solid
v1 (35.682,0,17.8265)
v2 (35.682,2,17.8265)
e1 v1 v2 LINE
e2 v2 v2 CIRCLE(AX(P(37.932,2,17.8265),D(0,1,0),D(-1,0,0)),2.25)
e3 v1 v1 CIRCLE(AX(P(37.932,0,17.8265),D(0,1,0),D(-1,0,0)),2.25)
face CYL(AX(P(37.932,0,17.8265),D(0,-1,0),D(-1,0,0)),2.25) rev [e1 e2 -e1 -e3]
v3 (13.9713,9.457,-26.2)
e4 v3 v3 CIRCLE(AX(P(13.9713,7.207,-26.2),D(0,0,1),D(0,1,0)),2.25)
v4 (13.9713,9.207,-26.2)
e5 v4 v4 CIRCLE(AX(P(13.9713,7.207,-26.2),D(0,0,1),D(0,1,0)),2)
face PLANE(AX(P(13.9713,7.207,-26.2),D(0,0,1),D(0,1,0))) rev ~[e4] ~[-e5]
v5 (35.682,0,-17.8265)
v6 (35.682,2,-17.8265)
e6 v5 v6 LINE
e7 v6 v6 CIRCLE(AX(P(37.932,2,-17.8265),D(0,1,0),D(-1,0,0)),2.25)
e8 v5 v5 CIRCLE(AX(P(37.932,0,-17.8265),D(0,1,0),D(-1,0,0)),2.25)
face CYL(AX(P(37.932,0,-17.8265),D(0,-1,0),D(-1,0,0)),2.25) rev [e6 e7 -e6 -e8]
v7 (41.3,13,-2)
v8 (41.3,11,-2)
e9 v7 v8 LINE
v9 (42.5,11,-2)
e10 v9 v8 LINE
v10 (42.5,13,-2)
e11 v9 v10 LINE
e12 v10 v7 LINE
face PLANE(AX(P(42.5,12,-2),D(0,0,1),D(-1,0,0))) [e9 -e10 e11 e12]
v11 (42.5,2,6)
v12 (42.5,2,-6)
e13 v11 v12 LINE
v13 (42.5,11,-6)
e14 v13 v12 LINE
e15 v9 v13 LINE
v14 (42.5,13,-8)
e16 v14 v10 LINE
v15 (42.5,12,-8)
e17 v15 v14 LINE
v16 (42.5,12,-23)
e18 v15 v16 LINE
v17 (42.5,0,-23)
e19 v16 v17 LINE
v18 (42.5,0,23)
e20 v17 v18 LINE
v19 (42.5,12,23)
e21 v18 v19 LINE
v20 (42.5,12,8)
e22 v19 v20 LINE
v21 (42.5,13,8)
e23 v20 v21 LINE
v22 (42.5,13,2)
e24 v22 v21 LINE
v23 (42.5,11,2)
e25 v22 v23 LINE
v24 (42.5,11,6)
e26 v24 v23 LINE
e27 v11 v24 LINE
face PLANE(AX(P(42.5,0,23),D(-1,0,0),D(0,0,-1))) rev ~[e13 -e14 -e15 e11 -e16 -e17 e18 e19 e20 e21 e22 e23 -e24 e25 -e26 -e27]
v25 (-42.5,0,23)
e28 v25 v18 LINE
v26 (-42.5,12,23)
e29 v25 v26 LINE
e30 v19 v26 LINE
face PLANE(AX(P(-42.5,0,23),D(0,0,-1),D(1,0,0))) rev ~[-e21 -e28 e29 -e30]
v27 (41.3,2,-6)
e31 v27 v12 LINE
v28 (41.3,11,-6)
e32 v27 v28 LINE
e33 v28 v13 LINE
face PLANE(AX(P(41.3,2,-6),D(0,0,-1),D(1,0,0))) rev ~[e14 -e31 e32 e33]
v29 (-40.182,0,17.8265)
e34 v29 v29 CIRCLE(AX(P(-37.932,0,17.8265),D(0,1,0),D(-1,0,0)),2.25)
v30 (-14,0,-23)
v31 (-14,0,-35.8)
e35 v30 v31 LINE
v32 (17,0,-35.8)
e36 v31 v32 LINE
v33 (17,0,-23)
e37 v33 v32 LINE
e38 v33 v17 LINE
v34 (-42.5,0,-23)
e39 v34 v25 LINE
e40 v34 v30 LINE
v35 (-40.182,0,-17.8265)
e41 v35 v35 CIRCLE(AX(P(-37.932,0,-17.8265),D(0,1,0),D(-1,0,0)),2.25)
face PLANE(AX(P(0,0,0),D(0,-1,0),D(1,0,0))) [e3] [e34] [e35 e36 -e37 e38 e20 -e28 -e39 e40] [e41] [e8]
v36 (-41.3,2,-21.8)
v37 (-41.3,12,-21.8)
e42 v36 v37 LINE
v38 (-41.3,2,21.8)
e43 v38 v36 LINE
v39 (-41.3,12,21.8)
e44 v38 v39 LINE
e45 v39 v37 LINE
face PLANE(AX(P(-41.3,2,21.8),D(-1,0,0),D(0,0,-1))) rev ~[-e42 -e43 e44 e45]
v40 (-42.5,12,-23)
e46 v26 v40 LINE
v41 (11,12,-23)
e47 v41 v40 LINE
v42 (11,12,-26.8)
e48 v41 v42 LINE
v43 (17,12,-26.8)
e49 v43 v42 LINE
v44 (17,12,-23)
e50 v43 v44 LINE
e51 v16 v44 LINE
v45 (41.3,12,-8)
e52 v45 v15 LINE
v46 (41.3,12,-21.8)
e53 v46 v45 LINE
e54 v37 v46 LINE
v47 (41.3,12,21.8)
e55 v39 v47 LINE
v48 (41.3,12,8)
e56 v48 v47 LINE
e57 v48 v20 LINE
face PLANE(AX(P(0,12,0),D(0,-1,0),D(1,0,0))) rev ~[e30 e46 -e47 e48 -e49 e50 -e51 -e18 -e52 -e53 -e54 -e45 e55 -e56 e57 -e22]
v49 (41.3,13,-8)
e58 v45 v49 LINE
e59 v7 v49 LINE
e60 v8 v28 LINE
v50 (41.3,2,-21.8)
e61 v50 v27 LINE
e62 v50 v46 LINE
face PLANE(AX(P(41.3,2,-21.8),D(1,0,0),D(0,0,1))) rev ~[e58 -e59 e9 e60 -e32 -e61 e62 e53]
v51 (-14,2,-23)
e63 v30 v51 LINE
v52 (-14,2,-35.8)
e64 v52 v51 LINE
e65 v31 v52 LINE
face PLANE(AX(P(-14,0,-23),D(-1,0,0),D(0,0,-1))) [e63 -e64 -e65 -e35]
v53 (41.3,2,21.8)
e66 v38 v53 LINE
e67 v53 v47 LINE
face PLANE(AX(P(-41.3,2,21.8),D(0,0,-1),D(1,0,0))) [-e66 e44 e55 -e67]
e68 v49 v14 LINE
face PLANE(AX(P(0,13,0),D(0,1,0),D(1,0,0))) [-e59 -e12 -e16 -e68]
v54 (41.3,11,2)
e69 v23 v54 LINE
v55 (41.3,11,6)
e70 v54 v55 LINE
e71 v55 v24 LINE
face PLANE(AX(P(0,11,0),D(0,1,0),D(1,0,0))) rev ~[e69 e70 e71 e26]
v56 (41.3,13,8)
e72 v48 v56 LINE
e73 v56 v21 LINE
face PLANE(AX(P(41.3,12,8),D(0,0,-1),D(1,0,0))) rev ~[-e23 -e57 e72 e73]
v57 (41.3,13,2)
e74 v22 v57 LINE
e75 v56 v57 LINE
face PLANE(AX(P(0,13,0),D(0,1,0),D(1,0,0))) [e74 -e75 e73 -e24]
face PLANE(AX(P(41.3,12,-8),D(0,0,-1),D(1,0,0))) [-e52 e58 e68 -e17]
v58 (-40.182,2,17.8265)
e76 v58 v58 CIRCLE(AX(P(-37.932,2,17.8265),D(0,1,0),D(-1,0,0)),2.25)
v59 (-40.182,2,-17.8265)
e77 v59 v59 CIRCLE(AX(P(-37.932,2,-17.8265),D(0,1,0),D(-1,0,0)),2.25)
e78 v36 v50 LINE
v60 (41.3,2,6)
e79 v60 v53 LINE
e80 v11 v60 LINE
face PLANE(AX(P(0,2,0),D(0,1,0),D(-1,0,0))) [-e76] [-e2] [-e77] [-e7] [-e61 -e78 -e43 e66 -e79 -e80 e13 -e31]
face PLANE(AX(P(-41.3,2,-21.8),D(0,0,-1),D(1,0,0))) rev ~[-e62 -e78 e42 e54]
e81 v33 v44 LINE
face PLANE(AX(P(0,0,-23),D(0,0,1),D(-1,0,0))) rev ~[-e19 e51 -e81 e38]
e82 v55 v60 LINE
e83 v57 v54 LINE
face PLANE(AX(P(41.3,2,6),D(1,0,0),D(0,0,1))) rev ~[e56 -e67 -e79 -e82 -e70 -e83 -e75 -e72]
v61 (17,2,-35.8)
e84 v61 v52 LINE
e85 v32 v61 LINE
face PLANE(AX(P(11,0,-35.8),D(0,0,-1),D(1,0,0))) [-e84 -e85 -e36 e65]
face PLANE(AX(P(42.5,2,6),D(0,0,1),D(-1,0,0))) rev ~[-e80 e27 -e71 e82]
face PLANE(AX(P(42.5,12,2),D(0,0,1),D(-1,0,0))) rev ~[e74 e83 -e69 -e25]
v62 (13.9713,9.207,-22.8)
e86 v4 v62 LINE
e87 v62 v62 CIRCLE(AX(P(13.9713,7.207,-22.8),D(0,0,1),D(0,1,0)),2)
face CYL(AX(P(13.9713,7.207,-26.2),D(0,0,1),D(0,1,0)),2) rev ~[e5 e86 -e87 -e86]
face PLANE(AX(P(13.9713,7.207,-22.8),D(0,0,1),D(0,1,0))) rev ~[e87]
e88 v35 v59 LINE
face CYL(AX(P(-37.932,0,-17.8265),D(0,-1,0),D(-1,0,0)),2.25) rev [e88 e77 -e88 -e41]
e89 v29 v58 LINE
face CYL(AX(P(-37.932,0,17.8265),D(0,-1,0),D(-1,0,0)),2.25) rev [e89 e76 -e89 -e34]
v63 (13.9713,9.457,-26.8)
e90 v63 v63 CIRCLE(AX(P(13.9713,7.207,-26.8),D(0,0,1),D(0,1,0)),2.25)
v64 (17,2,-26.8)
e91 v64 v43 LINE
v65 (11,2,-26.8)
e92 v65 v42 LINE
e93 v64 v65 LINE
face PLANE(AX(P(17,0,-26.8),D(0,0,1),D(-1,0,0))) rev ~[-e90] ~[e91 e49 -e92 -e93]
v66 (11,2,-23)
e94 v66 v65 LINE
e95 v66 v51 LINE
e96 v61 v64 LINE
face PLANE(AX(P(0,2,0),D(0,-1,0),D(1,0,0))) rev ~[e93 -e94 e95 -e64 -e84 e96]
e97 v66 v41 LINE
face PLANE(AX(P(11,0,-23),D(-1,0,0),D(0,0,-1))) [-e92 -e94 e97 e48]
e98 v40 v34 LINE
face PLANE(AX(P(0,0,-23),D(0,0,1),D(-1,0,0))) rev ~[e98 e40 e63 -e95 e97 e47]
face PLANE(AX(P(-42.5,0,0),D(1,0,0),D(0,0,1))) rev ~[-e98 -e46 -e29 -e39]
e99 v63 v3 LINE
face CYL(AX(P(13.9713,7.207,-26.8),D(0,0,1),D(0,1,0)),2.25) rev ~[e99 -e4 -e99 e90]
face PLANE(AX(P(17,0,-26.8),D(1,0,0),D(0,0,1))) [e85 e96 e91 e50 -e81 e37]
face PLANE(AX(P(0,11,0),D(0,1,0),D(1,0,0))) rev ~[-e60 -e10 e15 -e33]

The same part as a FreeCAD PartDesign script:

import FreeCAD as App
import Part
import Sketcher

doc = App.newDocument("Part")
body = doc.addObject("PartDesign::Body", "Body")

# Sketch on XZ plane
sketch1 = body.newObject("Sketcher::SketchObject", "Sketch")
sketch1.AttachmentSupport = (doc.getObject("XZ_Plane"), [""])
sketch1.MapMode = "FlatFace"
sketch1.addGeometry(Part.LineSegment(App.Vector(-42.5, 23, 0), App.Vector(42.5, 23, 0)), False)
sketch1.addGeometry(Part.LineSegment(App.Vector(42.5, 23, 0), App.Vector(42.5, -23, 0)), False)
sketch1.addGeometry(Part.LineSegment(App.Vector(42.5, -23, 0), App.Vector(-42.5, -23, 0)), False)
sketch1.addGeometry(Part.LineSegment(App.Vector(-42.5, -23, 0), App.Vector(-42.5, 23, 0)), False)
sketch1.addGeometry(Part.Circle(App.Vector(-37.9, 17.8, 0), App.Vector(0, 0, 1), 2.2), False)
sketch1.addGeometry(Part.Circle(App.Vector(-37.9, -17.8, 0), App.Vector(0, 0, 1), 2.2), False)
sketch1.addGeometry(Part.Circle(App.Vector(37.9, 17.8, 0), App.Vector(0, 0, 1), 2.2), False)
sketch1.addGeometry(Part.Circle(App.Vector(37.9, -17.8, 0), App.Vector(0, 0, 1), 2.2), False)
sketch1.addConstraint(Sketcher.Constraint("Coincident", 0, 2, 1, 1))
sketch1.addConstraint(Sketcher.Constraint("Coincident", 1, 2, 2, 1))
sketch1.addConstraint(Sketcher.Constraint("Coincident", 2, 2, 3, 1))
sketch1.addConstraint(Sketcher.Constraint("Coincident", 3, 2, 0, 1))
sketch1.addConstraint(Sketcher.Constraint("Horizontal", 0))
sketch1.addConstraint(Sketcher.Constraint("Vertical", 1))
sketch1.addConstraint(Sketcher.Constraint("Horizontal", 2))
sketch1.addConstraint(Sketcher.Constraint("Vertical", 3))
sketch1.addConstraint(Sketcher.Constraint("Equal", 4, 5))
sketch1.addConstraint(Sketcher.Constraint("Equal", 5, 6))
sketch1.addConstraint(Sketcher.Constraint("Equal", 6, 7))
sketch1.addConstraint(Sketcher.Constraint("Symmetric", 5, 3, 6, 3, -1, 1))
sketch1.addConstraint(Sketcher.Constraint("Symmetric", 4, 3, 7, 3, -1, 1))
sketch1.addConstraint(Sketcher.Constraint("Symmetric", 0, 2, 2, 2, -1, 1))
sketch1.addConstraint(Sketcher.Constraint("Symmetric", 4, 3, 6, 3, -2))
sketch1.addConstraint(Sketcher.Constraint("Diameter", 4, 4.5))
sketch1.addConstraint(Sketcher.Constraint("DistanceX", 0, 1, 0, 2, 85.0))
sketch1.addConstraint(Sketcher.Constraint("DistanceY", 1, 2, 1, 1, 46.0))
sketch1.addConstraint(Sketcher.Constraint("DistanceY", 5, 3, 4, 3, 35.653))
sketch1.addConstraint(Sketcher.Constraint("DistanceX", 4, 3, 6, 3, 75.864))
pad1 = body.newObject("PartDesign::Pad", "Pad")
pad1.Profile = sketch1
pad1.Length = 2
pad1.Reversed = True

# Sketch on XZ plane
sketch2 = body.newObject("Sketcher::SketchObject", "Sketch001")
sketch2.AttachmentSupport = (doc.getObject("XZ_Plane"), [""])
sketch2.MapMode = "FlatFace"
sketch2.AttachmentOffset = App.Placement(App.Vector(0, 0, -2), App.Rotation())
sketch2.addGeometry(Part.LineSegment(App.Vector(-42.5, 23, 0), App.Vector(42.5, 23, 0)), False)
sketch2.addGeometry(Part.LineSegment(App.Vector(42.5, 23, 0), App.Vector(42.5, 6, 0)), False)
sketch2.addGeometry(Part.LineSegment(App.Vector(42.5, 6, 0), App.Vector(41.3, 6, 0)), False)
sketch2.addGeometry(Part.LineSegment(App.Vector(41.3, 6, 0), App.Vector(41.3, 21.8, 0)), False)
sketch2.addGeometry(Part.LineSegment(App.Vector(41.3, 21.8, 0), App.Vector(-41.3, 21.8, 0)), False)
sketch2.addGeometry(Part.LineSegment(App.Vector(-41.3, 21.8, 0), App.Vector(-41.3, -21.8, 0)), False)
sketch2.addGeometry(Part.LineSegment(App.Vector(-41.3, -21.8, 0), App.Vector(41.3, -21.8, 0)), False)
sketch2.addGeometry(Part.LineSegment(App.Vector(41.3, -21.8, 0), App.Vector(41.3, -6, 0)), False)
sketch2.addGeometry(Part.LineSegment(App.Vector(41.3, -6, 0), App.Vector(42.5, -6, 0)), False)
sketch2.addGeometry(Part.LineSegment(App.Vector(42.5, -6, 0), App.Vector(42.5, -23, 0)), False)
sketch2.addGeometry(Part.LineSegment(App.Vector(42.5, -23, 0), App.Vector(-42.5, -23, 0)), False)
sketch2.addGeometry(Part.LineSegment(App.Vector(-42.5, -23, 0), App.Vector(-42.5, 23, 0)), False)
sketch2.addConstraint(Sketcher.Constraint("Coincident", 0, 2, 1, 1))
sketch2.addConstraint(Sketcher.Constraint("Coincident", 1, 2, 2, 1))
sketch2.addConstraint(Sketcher.Constraint("Coincident", 2, 2, 3, 1))
sketch2.addConstraint(Sketcher.Constraint("Coincident", 3, 2, 4, 1))
sketch2.addConstraint(Sketcher.Constraint("Coincident", 4, 2, 5, 1))
sketch2.addConstraint(Sketcher.Constraint("Coincident", 5, 2, 6, 1))
sketch2.addConstraint(Sketcher.Constraint("Coincident", 6, 2, 7, 1))
sketch2.addConstraint(Sketcher.Constraint("Coincident", 7, 2, 8, 1))
sketch2.addConstraint(Sketcher.Constraint("Coincident", 8, 2, 9, 1))
sketch2.addConstraint(Sketcher.Constraint("Coincident", 9, 2, 10, 1))
sketch2.addConstraint(Sketcher.Constraint("Coincident", 10, 2, 11, 1))
sketch2.addConstraint(Sketcher.Constraint("Coincident", 11, 2, 0, 1))
sketch2.addConstraint(Sketcher.Constraint("Horizontal", 0))
sketch2.addConstraint(Sketcher.Constraint("Vertical", 1))
sketch2.addConstraint(Sketcher.Constraint("Horizontal", 2))
sketch2.addConstraint(Sketcher.Constraint("Vertical", 3))
sketch2.addConstraint(Sketcher.Constraint("Horizontal", 4))
sketch2.addConstraint(Sketcher.Constraint("Vertical", 5))
sketch2.addConstraint(Sketcher.Constraint("Horizontal", 6))
sketch2.addConstraint(Sketcher.Constraint("Vertical", 7))
sketch2.addConstraint(Sketcher.Constraint("Horizontal", 8))
sketch2.addConstraint(Sketcher.Constraint("Vertical", 9))
sketch2.addConstraint(Sketcher.Constraint("Horizontal", 10))
sketch2.addConstraint(Sketcher.Constraint("Vertical", 11))
sketch2.addConstraint(Sketcher.Constraint("Symmetric", 3, 2, 5, 2, -1, 1))
sketch2.addConstraint(Sketcher.Constraint("Symmetric", 0, 2, 10, 2, -1, 1))
sketch2.addConstraint(Sketcher.Constraint("Symmetric", 2, 2, 7, 2, -1))
sketch2.addConstraint(Sketcher.Constraint("Vertical", 1, 2, 8, 2))
sketch2.addConstraint(Sketcher.Constraint("DistanceX", 2, 2, 2, 1, 1.2))
sketch2.addConstraint(Sketcher.Constraint("DistanceY", -1, 1, 1, 2, 6.0))
sketch2.addConstraint(Sketcher.Constraint("DistanceY", 3, 2, 0, 2, 1.2))
sketch2.addConstraint(Sketcher.Constraint("DistanceX", 0, 1, 0, 2, 85.0))
sketch2.addConstraint(Sketcher.Constraint("DistanceY", 1, 2, 1, 1, 17.0))
pad2 = body.newObject("PartDesign::Pad", "Pad001")
pad2.Profile = sketch2
pad2.Length = 10
pad2.Reversed = True

# Sketch on XZ plane
sketch3 = body.newObject("Sketcher::SketchObject", "Sketch002")
sketch3.AttachmentSupport = (doc.getObject("XZ_Plane"), [""])
sketch3.MapMode = "FlatFace"
sketch3.AttachmentOffset = App.Placement(App.Vector(0, 0, -12), App.Rotation())
sketch3.addGeometry(Part.LineSegment(App.Vector(42.5, 6, 0), App.Vector(41.3, 6, 0)), False)
sketch3.addGeometry(Part.LineSegment(App.Vector(41.3, 6, 0), App.Vector(41.3, 8, 0)), False)
sketch3.addGeometry(Part.LineSegment(App.Vector(41.3, 8, 0), App.Vector(42.5, 8, 0)), False)
sketch3.addGeometry(Part.LineSegment(App.Vector(42.5, 8, 0), App.Vector(42.5, 6, 0)), False)
sketch3.addGeometry(Part.LineSegment(App.Vector(41.3, -6, 0), App.Vector(42.5, -6, 0)), False)
sketch3.addGeometry(Part.LineSegment(App.Vector(42.5, -6, 0), App.Vector(42.5, -8, 0)), False)
sketch3.addGeometry(Part.LineSegment(App.Vector(42.5, -8, 0), App.Vector(41.3, -8, 0)), False)
sketch3.addGeometry(Part.LineSegment(App.Vector(41.3, -8, 0), App.Vector(41.3, -6, 0)), False)
sketch3.addConstraint(Sketcher.Constraint("Coincident", 0, 2, 1, 1))
sketch3.addConstraint(Sketcher.Constraint("Coincident", 1, 2, 2, 1))
sketch3.addConstraint(Sketcher.Constraint("Coincident", 2, 2, 3, 1))
sketch3.addConstraint(Sketcher.Constraint("Coincident", 3, 2, 0, 1))
sketch3.addConstraint(Sketcher.Constraint("Coincident", 4, 2, 5, 1))
sketch3.addConstraint(Sketcher.Constraint("Coincident", 5, 2, 6, 1))
sketch3.addConstraint(Sketcher.Constraint("Coincident", 6, 2, 7, 1))
sketch3.addConstraint(Sketcher.Constraint("Coincident", 7, 2, 4, 1))
sketch3.addConstraint(Sketcher.Constraint("Horizontal", 0))
sketch3.addConstraint(Sketcher.Constraint("Vertical", 1))
sketch3.addConstraint(Sketcher.Constraint("Horizontal", 2))
sketch3.addConstraint(Sketcher.Constraint("Vertical", 3))
sketch3.addConstraint(Sketcher.Constraint("Horizontal", 4))
sketch3.addConstraint(Sketcher.Constraint("Vertical", 5))
sketch3.addConstraint(Sketcher.Constraint("Horizontal", 6))
sketch3.addConstraint(Sketcher.Constraint("Vertical", 7))
sketch3.addConstraint(Sketcher.Constraint("Symmetric", 3, 2, 4, 2, -1))
sketch3.addConstraint(Sketcher.Constraint("Symmetric", 1, 2, 6, 2, -1))
sketch3.addConstraint(Sketcher.Constraint("DistanceY", 1, 1, 1, 2, 2.0))
sketch3.addConstraint(Sketcher.Constraint("DistanceY", -1, 1, 0, 2, 6.0))
sketch3.addConstraint(Sketcher.Constraint("DistanceX", 0, 2, 0, 1, 1.2))
sketch3.addConstraint(Sketcher.Constraint("DistanceX", -1, 1, 0, 2, 41.3))
pad3 = body.newObject("PartDesign::Pad", "Pad002")
pad3.Profile = sketch3
pad3.Length = 1
pad3.Reversed = True

# Sketch on XZ plane
sketch4 = body.newObject("Sketcher::SketchObject", "Sketch003")
sketch4.AttachmentSupport = (doc.getObject("XZ_Plane"), [""])
sketch4.MapMode = "FlatFace"
sketch4.AttachmentOffset = App.Placement(App.Vector(0, 0, -12), App.Rotation())
sketch4.addGeometry(Part.LineSegment(App.Vector(41.3, -2, 0), App.Vector(42.5, -2, 0)), False)
sketch4.addGeometry(Part.LineSegment(App.Vector(42.5, -2, 0), App.Vector(42.5, -6, 0)), False)
sketch4.addGeometry(Part.LineSegment(App.Vector(42.5, -6, 0), App.Vector(41.3, -6, 0)), False)
sketch4.addGeometry(Part.LineSegment(App.Vector(41.3, -6, 0), App.Vector(41.3, -2, 0)), False)
sketch4.addGeometry(Part.LineSegment(App.Vector(41.3, 2, 0), App.Vector(41.3, 6, 0)), False)
sketch4.addGeometry(Part.LineSegment(App.Vector(41.3, 6, 0), App.Vector(42.5, 6, 0)), False)
sketch4.addGeometry(Part.LineSegment(App.Vector(42.5, 6, 0), App.Vector(42.5, 2, 0)), False)
sketch4.addGeometry(Part.LineSegment(App.Vector(42.5, 2, 0), App.Vector(41.3, 2, 0)), False)
sketch4.addConstraint(Sketcher.Constraint("Coincident", 0, 2, 1, 1))
sketch4.addConstraint(Sketcher.Constraint("Coincident", 1, 2, 2, 1))
sketch4.addConstraint(Sketcher.Constraint("Coincident", 2, 2, 3, 1))
sketch4.addConstraint(Sketcher.Constraint("Coincident", 3, 2, 0, 1))
sketch4.addConstraint(Sketcher.Constraint("Coincident", 4, 2, 5, 1))
sketch4.addConstraint(Sketcher.Constraint("Coincident", 5, 2, 6, 1))
sketch4.addConstraint(Sketcher.Constraint("Coincident", 6, 2, 7, 1))
sketch4.addConstraint(Sketcher.Constraint("Coincident", 7, 2, 4, 1))
sketch4.addConstraint(Sketcher.Constraint("Horizontal", 0))
sketch4.addConstraint(Sketcher.Constraint("Vertical", 1))
sketch4.addConstraint(Sketcher.Constraint("Horizontal", 2))
sketch4.addConstraint(Sketcher.Constraint("Vertical", 3))
sketch4.addConstraint(Sketcher.Constraint("Vertical", 4))
sketch4.addConstraint(Sketcher.Constraint("Horizontal", 5))
sketch4.addConstraint(Sketcher.Constraint("Vertical", 6))
sketch4.addConstraint(Sketcher.Constraint("Horizontal", 7))
sketch4.addConstraint(Sketcher.Constraint("Symmetric", 2, 2, 4, 2, -1))
sketch4.addConstraint(Sketcher.Constraint("Symmetric", 0, 2, 6, 2, -1))
sketch4.addConstraint(Sketcher.Constraint("DistanceY", 0, 2, -1, 1, 2.0))
sketch4.addConstraint(Sketcher.Constraint("DistanceY", 1, 2, -1, 1, 6.0))
sketch4.addConstraint(Sketcher.Constraint("DistanceX", 0, 1, 0, 2, 1.2))
sketch4.addConstraint(Sketcher.Constraint("DistanceX", -1, 1, 0, 2, 42.5))
pad4 = body.newObject("PartDesign::Pad", "Pad003")
pad4.Profile = sketch4
pad4.Length = 2
pad4.Midplane = True

# Sketch on XZ plane
sketch5 = body.newObject("Sketcher::SketchObject", "Sketch004")
sketch5.AttachmentSupport = (doc.getObject("XZ_Plane"), [""])
sketch5.MapMode = "FlatFace"
sketch5.addGeometry(Part.LineSegment(App.Vector(11, -26.8, 0), App.Vector(11, -23, 0)), False)
sketch5.addGeometry(Part.LineSegment(App.Vector(11, -23, 0), App.Vector(-14, -23, 0)), False)
sketch5.addGeometry(Part.LineSegment(App.Vector(-14, -23, 0), App.Vector(-14, -35.8, 0)), False)
sketch5.addGeometry(Part.LineSegment(App.Vector(-14, -35.8, 0), App.Vector(17, -35.8, 0)), False)
sketch5.addGeometry(Part.LineSegment(App.Vector(17, -35.8, 0), App.Vector(17, -26.8, 0)), False)
sketch5.addGeometry(Part.LineSegment(App.Vector(17, -26.8, 0), App.Vector(11, -26.8, 0)), False)
sketch5.addConstraint(Sketcher.Constraint("Coincident", 0, 2, 1, 1))
sketch5.addConstraint(Sketcher.Constraint("Coincident", 1, 2, 2, 1))
sketch5.addConstraint(Sketcher.Constraint("Coincident", 2, 2, 3, 1))
sketch5.addConstraint(Sketcher.Constraint("Coincident", 3, 2, 4, 1))
sketch5.addConstraint(Sketcher.Constraint("Coincident", 4, 2, 5, 1))
sketch5.addConstraint(Sketcher.Constraint("Coincident", 5, 2, 0, 1))
sketch5.addConstraint(Sketcher.Constraint("Vertical", 0))
sketch5.addConstraint(Sketcher.Constraint("Horizontal", 1))
sketch5.addConstraint(Sketcher.Constraint("Vertical", 2))
sketch5.addConstraint(Sketcher.Constraint("Horizontal", 3))
sketch5.addConstraint(Sketcher.Constraint("Vertical", 4))
sketch5.addConstraint(Sketcher.Constraint("Horizontal", 5))
sketch5.addConstraint(Sketcher.Constraint("DistanceX", 5, 2, 5, 1, 6.0))
sketch5.addConstraint(Sketcher.Constraint("DistanceY", 4, 1, 4, 2, 9.0))
sketch5.addConstraint(Sketcher.Constraint("DistanceY", 0, 1, 0, 2, 3.8))
sketch5.addConstraint(Sketcher.Constraint("DistanceX", 1, 2, 1, 1, 25.0))
sketch5.addConstraint(Sketcher.Constraint("DistanceX", -1, 1, 0, 2, 11.0))
sketch5.addConstraint(Sketcher.Constraint("DistanceY", 0, 2, -1, 1, 23.0))
pad5 = body.newObject("PartDesign::Pad", "Pad004")
pad5.Profile = sketch5
pad5.Length = 2
pad5.Reversed = True

# Sketch on XZ plane
sketch6 = body.newObject("Sketcher::SketchObject", "Sketch005")
sketch6.AttachmentSupport = (doc.getObject("XZ_Plane"), [""])
sketch6.MapMode = "FlatFace"
sketch6.addGeometry(Part.LineSegment(App.Vector(17, -26.8, 0), App.Vector(17, -23, 0)), False)
sketch6.addGeometry(Part.LineSegment(App.Vector(17, -23, 0), App.Vector(11, -23, 0)), False)
sketch6.addGeometry(Part.LineSegment(App.Vector(11, -23, 0), App.Vector(11, -26.8, 0)), False)
sketch6.addGeometry(Part.LineSegment(App.Vector(11, -26.8, 0), App.Vector(17, -26.8, 0)), False)
sketch6.addConstraint(Sketcher.Constraint("Coincident", 0, 2, 1, 1))
sketch6.addConstraint(Sketcher.Constraint("Coincident", 1, 2, 2, 1))
sketch6.addConstraint(Sketcher.Constraint("Coincident", 2, 2, 3, 1))
sketch6.addConstraint(Sketcher.Constraint("Coincident", 3, 2, 0, 1))
sketch6.addConstraint(Sketcher.Constraint("Vertical", 0))
sketch6.addConstraint(Sketcher.Constraint("Horizontal", 1))
sketch6.addConstraint(Sketcher.Constraint("Vertical", 2))
sketch6.addConstraint(Sketcher.Constraint("Horizontal", 3))
sketch6.addConstraint(Sketcher.Constraint("DistanceX", 1, 2, 1, 1, 6.0))
sketch6.addConstraint(Sketcher.Constraint("DistanceY", 0, 1, 0, 2, 3.8))
sketch6.addConstraint(Sketcher.Constraint("DistanceX", -1, 1, 0, 2, 17.0))
sketch6.addConstraint(Sketcher.Constraint("DistanceY", 0, 2, -1, 1, 23.0))
pad6 = body.newObject("PartDesign::Pad", "Pad005")
pad6.Profile = sketch6
pad6.Length = 12
pad6.Reversed = True

# Sketch on XY plane
sketch7 = body.newObject("Sketcher::SketchObject", "Sketch006")
sketch7.AttachmentSupport = (doc.getObject("XY_Plane"), [""])
sketch7.MapMode = "FlatFace"
sketch7.AttachmentOffset = App.Placement(App.Vector(0, 0, -26.8), App.Rotation())
sketch7.addGeometry(Part.Circle(App.Vector(14, 7.2, 0), App.Vector(0, 0, 1), 2), False)
sketch7.addConstraint(Sketcher.Constraint("Diameter", 0, 4.0))
sketch7.addConstraint(Sketcher.Constraint("DistanceY", -1, 1, 0, 3, 7.207))
sketch7.addConstraint(Sketcher.Constraint("DistanceX", -1, 1, 0, 3, 13.9713))
doc.recompute()
hole = body.newObject("PartDesign::Hole", "Hole")
hole.Profile = sketch7
hole.ThreadType = "None"
hole.Diameter = 4
hole.DepthType = "Dimension"
hole.Depth = 4
hole.DrillPoint = "Flat"
hole.HoleCutType = "Counterbore"
hole.HoleCutDiameter = 4.5
hole.HoleCutDepth = 0.6
hole.Reversed = True

doc.recompute()
